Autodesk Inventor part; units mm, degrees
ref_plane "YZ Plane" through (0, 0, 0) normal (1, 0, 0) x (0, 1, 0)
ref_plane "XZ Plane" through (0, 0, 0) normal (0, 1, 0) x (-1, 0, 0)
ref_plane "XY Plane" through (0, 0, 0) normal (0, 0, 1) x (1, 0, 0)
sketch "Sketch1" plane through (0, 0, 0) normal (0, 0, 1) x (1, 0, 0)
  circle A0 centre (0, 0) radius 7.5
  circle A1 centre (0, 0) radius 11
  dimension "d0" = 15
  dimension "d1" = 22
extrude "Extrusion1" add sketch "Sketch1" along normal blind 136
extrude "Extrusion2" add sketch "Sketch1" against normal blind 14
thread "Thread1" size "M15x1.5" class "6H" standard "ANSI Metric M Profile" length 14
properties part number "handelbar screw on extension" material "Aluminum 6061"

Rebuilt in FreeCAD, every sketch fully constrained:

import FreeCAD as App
import Part
import Sketcher

doc = App.newDocument("Part")
body = doc.addObject("PartDesign::Body", "Body")

# Sketch on XY plane
sketch1 = body.newObject("Sketcher::SketchObject", "Sketch")
sketch1.AttachmentSupport = (doc.getObject("XY_Plane"), [""])
sketch1.MapMode = "FlatFace"
sketch1.addGeometry(Part.Circle(App.Vector(0, 0, 0), App.Vector(0, 0, 1), 11), False)
sketch1.addGeometry(Part.Circle(App.Vector(0, 0, 0), App.Vector(0, 0, 1), 7.5), False)
sketch1.addConstraint(Sketcher.Constraint("Coincident", 0, 3, -1, 1))
sketch1.addConstraint(Sketcher.Constraint("Coincident", 1, 3, -1, 1))
sketch1.addConstraint(Sketcher.Constraint("Diameter", 0, 22.0))
sketch1.addConstraint(Sketcher.Constraint("Diameter", 1, 15.0))
pad1 = body.newObject("PartDesign::Pad", "Pad")
pad1.Profile = sketch1
pad1.Length = 136

# Sketch on XY plane
sketch2 = body.newObject("Sketcher::SketchObject", "Sketch001")
sketch2.AttachmentSupport = (doc.getObject("XY_Plane"), [""])
sketch2.MapMode = "FlatFace"
sketch2.addGeometry(Part.Circle(App.Vector(0, 0, 0), App.Vector(0, 0, 1), 11), False)
sketch2.addGeometry(Part.Circle(App.Vector(0, 0, 0), App.Vector(0, 0, 1), 7.5), False)
sketch2.addConstraint(Sketcher.Constraint("Coincident", 0, 3, -1, 1))
sketch2.addConstraint(Sketcher.Constraint("Coincident", 1, 3, -1, 1))
sketch2.addConstraint(Sketcher.Constraint("Diameter", 0, 22.0))
sketch2.addConstraint(Sketcher.Constraint("Diameter", 1, 15.0))
pad2 = body.newObject("PartDesign::Pad", "Pad001")
pad2.Profile = sketch2
pad2.Length = 14
pad2.Reversed = True

doc.recompute()
